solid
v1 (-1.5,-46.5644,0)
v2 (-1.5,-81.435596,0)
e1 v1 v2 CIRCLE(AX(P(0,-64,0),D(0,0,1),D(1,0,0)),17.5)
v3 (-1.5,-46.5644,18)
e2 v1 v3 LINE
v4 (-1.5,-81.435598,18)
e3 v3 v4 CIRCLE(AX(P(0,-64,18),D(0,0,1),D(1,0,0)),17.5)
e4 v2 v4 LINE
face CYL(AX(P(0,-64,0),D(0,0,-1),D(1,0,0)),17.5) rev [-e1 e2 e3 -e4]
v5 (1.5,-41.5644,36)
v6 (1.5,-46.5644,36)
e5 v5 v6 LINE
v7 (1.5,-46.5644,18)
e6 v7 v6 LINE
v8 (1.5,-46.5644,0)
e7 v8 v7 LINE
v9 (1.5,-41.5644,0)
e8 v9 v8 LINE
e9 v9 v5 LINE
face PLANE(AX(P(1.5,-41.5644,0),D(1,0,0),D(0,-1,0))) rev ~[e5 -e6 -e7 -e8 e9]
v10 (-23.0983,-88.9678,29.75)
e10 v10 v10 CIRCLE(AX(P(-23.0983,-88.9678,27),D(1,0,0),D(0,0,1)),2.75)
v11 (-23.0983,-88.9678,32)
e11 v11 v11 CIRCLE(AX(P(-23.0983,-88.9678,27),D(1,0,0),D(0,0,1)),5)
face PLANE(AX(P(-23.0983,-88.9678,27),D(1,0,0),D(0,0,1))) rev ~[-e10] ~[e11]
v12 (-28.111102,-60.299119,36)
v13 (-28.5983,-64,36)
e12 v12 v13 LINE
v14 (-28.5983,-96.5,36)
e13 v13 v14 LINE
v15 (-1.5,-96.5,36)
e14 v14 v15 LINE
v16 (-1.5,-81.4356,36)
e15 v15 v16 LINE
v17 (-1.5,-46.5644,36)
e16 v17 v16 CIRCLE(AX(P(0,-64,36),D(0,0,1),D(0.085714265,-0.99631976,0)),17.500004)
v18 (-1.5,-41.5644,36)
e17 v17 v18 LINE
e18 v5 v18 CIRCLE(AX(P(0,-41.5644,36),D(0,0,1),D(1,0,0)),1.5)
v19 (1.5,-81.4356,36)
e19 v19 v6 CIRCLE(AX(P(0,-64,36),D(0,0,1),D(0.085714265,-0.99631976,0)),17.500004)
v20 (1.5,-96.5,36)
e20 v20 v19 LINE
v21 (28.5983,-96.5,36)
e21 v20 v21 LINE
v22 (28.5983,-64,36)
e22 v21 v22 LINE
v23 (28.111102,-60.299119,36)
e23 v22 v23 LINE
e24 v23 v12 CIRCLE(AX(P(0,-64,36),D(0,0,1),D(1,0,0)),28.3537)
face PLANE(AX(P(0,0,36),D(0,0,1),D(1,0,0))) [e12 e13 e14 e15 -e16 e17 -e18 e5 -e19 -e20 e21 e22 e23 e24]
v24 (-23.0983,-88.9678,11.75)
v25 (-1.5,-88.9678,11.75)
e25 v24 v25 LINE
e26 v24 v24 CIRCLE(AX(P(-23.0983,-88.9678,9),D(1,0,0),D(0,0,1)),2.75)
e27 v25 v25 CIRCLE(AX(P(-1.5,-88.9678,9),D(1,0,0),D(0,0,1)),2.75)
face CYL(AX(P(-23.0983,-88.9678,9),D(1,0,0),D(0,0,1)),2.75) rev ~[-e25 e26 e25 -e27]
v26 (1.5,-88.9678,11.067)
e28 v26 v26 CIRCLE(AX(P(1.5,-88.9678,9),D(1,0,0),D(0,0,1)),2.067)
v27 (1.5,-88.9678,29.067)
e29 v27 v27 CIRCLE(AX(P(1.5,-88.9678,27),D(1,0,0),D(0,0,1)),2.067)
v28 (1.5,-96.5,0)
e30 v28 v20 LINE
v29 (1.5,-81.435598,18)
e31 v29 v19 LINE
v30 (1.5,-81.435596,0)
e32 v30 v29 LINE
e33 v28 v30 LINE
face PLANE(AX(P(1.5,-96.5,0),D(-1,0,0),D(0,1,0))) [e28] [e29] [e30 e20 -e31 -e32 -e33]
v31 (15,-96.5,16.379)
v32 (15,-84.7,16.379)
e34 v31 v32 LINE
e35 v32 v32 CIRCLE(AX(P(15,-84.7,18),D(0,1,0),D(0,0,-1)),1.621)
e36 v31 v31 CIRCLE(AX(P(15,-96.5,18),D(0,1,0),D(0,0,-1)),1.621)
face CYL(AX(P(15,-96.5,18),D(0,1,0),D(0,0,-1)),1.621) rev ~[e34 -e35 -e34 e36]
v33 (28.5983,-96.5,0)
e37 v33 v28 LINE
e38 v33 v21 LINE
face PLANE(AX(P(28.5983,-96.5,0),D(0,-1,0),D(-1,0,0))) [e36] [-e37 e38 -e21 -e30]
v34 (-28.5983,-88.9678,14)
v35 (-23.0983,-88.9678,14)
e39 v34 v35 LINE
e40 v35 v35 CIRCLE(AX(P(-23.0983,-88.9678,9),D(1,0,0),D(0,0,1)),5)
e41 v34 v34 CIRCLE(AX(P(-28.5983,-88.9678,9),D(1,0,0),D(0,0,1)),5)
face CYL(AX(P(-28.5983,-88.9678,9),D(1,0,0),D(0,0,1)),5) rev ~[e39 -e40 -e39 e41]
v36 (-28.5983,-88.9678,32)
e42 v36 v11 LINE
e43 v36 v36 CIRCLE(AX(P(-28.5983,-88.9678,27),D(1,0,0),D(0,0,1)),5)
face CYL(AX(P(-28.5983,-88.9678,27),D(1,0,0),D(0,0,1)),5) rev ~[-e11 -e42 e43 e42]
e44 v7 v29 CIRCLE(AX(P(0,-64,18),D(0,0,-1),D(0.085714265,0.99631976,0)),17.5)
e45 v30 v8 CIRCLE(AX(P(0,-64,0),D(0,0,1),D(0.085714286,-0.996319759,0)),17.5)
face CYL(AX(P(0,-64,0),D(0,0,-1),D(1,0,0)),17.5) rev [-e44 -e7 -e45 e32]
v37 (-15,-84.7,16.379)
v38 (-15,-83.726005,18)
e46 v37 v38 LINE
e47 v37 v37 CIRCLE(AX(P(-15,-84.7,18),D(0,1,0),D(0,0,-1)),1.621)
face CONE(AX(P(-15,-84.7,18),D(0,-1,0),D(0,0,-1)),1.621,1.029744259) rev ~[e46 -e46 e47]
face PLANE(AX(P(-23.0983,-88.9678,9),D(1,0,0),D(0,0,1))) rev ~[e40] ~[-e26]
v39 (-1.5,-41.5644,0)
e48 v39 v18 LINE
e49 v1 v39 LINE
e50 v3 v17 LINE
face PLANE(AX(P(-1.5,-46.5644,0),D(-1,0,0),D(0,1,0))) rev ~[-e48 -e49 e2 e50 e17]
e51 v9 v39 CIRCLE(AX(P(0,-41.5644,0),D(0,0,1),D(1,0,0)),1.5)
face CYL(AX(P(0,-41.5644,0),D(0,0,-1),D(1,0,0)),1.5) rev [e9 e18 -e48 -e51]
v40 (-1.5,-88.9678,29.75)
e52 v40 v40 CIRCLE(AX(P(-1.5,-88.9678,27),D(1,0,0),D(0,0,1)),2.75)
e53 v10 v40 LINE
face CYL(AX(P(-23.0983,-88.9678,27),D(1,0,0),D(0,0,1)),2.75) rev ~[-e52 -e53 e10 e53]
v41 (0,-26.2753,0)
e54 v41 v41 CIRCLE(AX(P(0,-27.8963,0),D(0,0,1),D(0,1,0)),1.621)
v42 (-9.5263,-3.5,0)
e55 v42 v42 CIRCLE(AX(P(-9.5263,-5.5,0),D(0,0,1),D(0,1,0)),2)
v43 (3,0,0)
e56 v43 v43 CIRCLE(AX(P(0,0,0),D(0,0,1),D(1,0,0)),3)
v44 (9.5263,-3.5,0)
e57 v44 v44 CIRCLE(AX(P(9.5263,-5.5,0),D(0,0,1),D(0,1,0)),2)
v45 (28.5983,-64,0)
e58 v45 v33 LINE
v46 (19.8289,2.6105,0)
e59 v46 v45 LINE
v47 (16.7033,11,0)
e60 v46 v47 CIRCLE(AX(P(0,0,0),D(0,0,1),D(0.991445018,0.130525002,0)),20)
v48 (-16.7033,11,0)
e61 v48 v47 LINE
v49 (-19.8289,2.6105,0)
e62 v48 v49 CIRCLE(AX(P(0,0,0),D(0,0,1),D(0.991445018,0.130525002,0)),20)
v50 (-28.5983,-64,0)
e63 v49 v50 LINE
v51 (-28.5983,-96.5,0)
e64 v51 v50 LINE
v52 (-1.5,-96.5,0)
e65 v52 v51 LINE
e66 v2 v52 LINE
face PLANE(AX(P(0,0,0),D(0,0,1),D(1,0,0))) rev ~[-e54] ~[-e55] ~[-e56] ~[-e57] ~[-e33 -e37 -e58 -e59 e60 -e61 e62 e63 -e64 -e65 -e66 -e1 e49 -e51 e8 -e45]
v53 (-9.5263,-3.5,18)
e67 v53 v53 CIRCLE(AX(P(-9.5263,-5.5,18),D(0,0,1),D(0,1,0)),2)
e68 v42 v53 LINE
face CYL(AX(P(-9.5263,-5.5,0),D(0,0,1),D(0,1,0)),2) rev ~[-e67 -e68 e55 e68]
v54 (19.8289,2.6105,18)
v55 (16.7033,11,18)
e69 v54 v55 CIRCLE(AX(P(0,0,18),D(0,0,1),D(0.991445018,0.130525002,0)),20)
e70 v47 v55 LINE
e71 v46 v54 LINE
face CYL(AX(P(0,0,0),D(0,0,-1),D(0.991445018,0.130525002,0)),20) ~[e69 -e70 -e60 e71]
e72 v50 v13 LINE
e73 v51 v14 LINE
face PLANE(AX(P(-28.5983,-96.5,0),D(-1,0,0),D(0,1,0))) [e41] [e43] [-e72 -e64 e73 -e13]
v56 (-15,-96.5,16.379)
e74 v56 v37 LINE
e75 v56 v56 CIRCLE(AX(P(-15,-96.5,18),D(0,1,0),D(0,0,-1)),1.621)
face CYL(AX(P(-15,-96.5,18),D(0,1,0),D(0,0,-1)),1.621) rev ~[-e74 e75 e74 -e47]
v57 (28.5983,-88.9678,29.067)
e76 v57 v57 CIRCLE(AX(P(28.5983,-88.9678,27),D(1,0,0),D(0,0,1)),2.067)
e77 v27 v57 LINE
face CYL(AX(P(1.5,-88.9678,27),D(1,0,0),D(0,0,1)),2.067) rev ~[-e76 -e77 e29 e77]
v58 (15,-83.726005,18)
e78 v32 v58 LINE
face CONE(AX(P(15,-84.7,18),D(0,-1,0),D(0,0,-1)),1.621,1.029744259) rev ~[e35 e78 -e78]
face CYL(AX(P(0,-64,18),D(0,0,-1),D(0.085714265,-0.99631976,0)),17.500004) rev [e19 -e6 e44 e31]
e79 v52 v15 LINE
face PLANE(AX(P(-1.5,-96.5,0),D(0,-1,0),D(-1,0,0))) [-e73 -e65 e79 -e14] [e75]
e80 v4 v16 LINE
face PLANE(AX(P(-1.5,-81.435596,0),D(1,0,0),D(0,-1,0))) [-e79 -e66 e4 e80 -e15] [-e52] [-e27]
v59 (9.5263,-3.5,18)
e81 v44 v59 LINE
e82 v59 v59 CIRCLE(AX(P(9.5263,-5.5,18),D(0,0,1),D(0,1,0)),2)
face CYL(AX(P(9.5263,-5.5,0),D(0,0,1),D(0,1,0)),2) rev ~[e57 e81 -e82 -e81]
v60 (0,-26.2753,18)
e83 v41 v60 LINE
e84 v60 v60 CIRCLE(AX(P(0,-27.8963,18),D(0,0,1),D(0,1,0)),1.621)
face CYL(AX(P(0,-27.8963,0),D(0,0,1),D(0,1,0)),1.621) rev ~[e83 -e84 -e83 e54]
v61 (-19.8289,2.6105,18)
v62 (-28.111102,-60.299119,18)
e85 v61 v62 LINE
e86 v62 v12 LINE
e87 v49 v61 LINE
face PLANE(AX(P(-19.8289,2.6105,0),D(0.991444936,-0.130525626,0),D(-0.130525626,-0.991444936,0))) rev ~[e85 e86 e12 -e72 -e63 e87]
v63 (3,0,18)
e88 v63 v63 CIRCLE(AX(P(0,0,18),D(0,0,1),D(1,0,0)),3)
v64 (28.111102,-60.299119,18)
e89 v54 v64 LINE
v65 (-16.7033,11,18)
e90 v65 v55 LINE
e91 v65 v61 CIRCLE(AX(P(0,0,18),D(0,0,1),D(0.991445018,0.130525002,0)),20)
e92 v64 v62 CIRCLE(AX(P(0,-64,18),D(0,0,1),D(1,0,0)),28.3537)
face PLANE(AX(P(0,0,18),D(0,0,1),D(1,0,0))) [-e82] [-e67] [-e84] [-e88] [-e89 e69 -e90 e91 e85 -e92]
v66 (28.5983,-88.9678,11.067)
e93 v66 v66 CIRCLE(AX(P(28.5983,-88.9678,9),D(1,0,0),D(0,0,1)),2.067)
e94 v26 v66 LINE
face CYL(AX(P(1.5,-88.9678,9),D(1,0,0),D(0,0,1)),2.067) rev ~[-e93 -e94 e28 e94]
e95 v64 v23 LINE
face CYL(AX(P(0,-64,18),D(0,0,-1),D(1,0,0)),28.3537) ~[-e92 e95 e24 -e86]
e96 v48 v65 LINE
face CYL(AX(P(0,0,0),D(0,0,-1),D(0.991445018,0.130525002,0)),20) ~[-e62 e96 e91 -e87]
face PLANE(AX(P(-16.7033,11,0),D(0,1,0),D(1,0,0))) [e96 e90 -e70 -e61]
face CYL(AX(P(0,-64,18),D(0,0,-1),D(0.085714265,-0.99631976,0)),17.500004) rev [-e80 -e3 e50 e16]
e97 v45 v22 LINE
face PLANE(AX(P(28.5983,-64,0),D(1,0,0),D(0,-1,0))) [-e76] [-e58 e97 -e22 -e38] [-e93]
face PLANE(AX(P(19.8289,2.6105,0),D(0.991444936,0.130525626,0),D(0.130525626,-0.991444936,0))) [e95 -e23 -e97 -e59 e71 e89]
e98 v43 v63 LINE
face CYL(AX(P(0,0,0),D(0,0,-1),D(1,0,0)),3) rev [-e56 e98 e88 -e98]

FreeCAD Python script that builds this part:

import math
import FreeCAD as App
import Part
import Sketcher
from FreeCAD import Vector
Q = App.Units.Quantity

doc = App.newDocument("Part")
body = doc.addObject("PartDesign::Body", "Body")

# Sketch on XY plane
sketch1 = doc.addObject("Sketcher::SketchObject", "Sketch")
body.addObject(sketch1)
sketch1.AttachmentSupport = (doc.XY_Plane, [""])
sketch1.MapMode = "FlatFace"
sketch1.addGeometry(Part.ArcOfCircle(Part.Circle(Vector(0, 0, 0), Vector(0, 0, 1), 20), math.radians(146.632998), math.radians(172.500069)), False)
sketch1.addGeometry(Part.LineSegment(Vector(-19.8289, 2.6105, 0), Vector(-28.5983, -64, 0)), False)
sketch1.addGeometry(Part.LineSegment(Vector(-28.5983, -64, 0), Vector(-28.5983, -96.5, 0)), False)
sketch1.addGeometry(Part.LineSegment(Vector(-28.5983, -96.5, 0), Vector(-1.5, -96.5, 0)), False)
sketch1.addGeometry(Part.LineSegment(Vector(-1.5, -96.5, 0), Vector(-1.5, -81.435596, 0)), False)
sketch1.addGeometry(Part.ArcOfCircle(Part.Circle(Vector(0, -64, 0), Vector(0, 0, 1), 17.5), math.radians(94.917099), math.radians(265.0829)), False)
sketch1.addGeometry(Part.LineSegment(Vector(-1.5, -46.5644, 0), Vector(-1.5, -41.5644, 0)), False)
sketch1.addGeometry(Part.ArcOfCircle(Part.Circle(Vector(0, -41.5644, 0), Vector(0, 0, 1), 1.5), math.radians(0), math.radians(180)), False)
sketch1.addGeometry(Part.LineSegment(Vector(1.5, -41.5644, 0), Vector(1.5, -46.5644, 0)), False)
sketch1.addGeometry(Part.ArcOfCircle(Part.Circle(Vector(0, -64, 0), Vector(0, 0, 1), 17.5), math.radians(-85.0829), math.radians(85.082901)), False)
sketch1.addGeometry(Part.LineSegment(Vector(1.5, -81.435596, 0), Vector(1.5, -96.5, 0)), False)
sketch1.addGeometry(Part.LineSegment(Vector(1.5, -96.5, 0), Vector(28.5983, -96.5, 0)), False)
sketch1.addGeometry(Part.LineSegment(Vector(28.5983, -96.5, 0), Vector(28.5983, -64, 0)), False)
sketch1.addGeometry(Part.LineSegment(Vector(28.5983, -64, 0), Vector(19.8289, 2.6105, 0)), False)
sketch1.addGeometry(Part.ArcOfCircle(Part.Circle(Vector(0, 0, 0), Vector(0, 0, 1), 20), math.radians(7.499931), math.radians(33.367002)), False)
sketch1.addGeometry(Part.LineSegment(Vector(16.7033, 11, 0), Vector(-16.7033, 11, 0)), False)
sketch1.addGeometry(Part.Circle(Vector(0, 0, 0), Vector(0, 0, 1), 3), False)
sketch1.addConstraint(Sketcher.Constraint("Tangent", 0, 2, 1, 1))
sketch1.addConstraint(Sketcher.Constraint("Coincident", 1, 2, 2, 1))
sketch1.addConstraint(Sketcher.Constraint("Coincident", 2, 2, 3, 1))
sketch1.addConstraint(Sketcher.Constraint("Coincident", 3, 2, 4, 1))
sketch1.addConstraint(Sketcher.Constraint("Coincident", 4, 2, 5, 2))
sketch1.addConstraint(Sketcher.Constraint("Coincident", 5, 1, 6, 1))
sketch1.addConstraint(Sketcher.Constraint("Tangent", 6, 2, 7, 2))
sketch1.addConstraint(Sketcher.Constraint("Tangent", 7, 1, 8, 1))
sketch1.addConstraint(Sketcher.Constraint("Coincident", 8, 2, 9, 2))
sketch1.addConstraint(Sketcher.Constraint("Coincident", 9, 1, 10, 1))
sketch1.addConstraint(Sketcher.Constraint("Coincident", 10, 2, 11, 1))
sketch1.addConstraint(Sketcher.Constraint("Coincident", 11, 2, 12, 1))
sketch1.addConstraint(Sketcher.Constraint("Coincident", 12, 2, 13, 1))
sketch1.addConstraint(Sketcher.Constraint("Tangent", 13, 2, 14, 1))
sketch1.addConstraint(Sketcher.Constraint("Coincident", 14, 2, 15, 1))
sketch1.addConstraint(Sketcher.Constraint("Coincident", 15, 2, 0, 1))
sketch1.addConstraint(Sketcher.Constraint("Vertical", 2))
sketch1.addConstraint(Sketcher.Constraint("Horizontal", 3))
sketch1.addConstraint(Sketcher.Constraint("Vertical", 4))
sketch1.addConstraint(Sketcher.Constraint("Vertical", 6))
sketch1.addConstraint(Sketcher.Constraint("Vertical", 8))
sketch1.addConstraint(Sketcher.Constraint("Vertical", 10))
sketch1.addConstraint(Sketcher.Constraint("Horizontal", 11))
sketch1.addConstraint(Sketcher.Constraint("Vertical", 12))
sketch1.addConstraint(Sketcher.Constraint("Horizontal", 15))
sketch1.addConstraint(Sketcher.Constraint("Coincident", 0, 3, -1, 1))
sketch1.addConstraint(Sketcher.Constraint("Coincident", 14, 3, -1, 1))
sketch1.addConstraint(Sketcher.Constraint("Coincident", 16, 3, -1, 1))
sketch1.addConstraint(Sketcher.Constraint("Coincident", 9, 3, 5, 3))
sketch1.addConstraint(Sketcher.Constraint("Equal", 5, 9))
sketch1.addConstraint(Sketcher.Constraint("Equal", 0, 14))
sketch1.addConstraint(Sketcher.Constraint("Symmetric", 5, 1, 8, 2, -2))
sketch1.addConstraint(Sketcher.Constraint("Symmetric", 3, 2, 10, 2, -2))
sketch1.addConstraint(Sketcher.Constraint("Symmetric", 1, 2, 12, 2, -2))
sketch1.addConstraint(Sketcher.Constraint("Horizontal", 9, 3, 1, 2))
sketch1.addConstraint(Sketcher.Constraint("Vertical", 4, 2, 5, 1))
sketch1.addConstraint(Sketcher.Constraint("Diameter", 16, 6.0))
sketch1.addConstraint(Sketcher.Constraint("Radius", 0, 20.0))
sketch1.addConstraint(Sketcher.Constraint("Radius", 5, 17.5))
sketch1.addConstraint(Sketcher.Constraint("Radius", 7, 1.5))
sketch1.addConstraint(Sketcher.Constraint("DistanceY", 6, 1, 6, 2, 5.0))
sketch1.addConstraint(Sketcher.Constraint("DistanceY", -1, 1, 14, 2, 11.0))
sketch1.addConstraint(Sketcher.Constraint("DistanceY", 2, 2, 2, 1, 32.5))
sketch1.addConstraint(Sketcher.Constraint("DistanceY", 5, 3, -1, 1, 64.0))
sketch1.addConstraint(Sketcher.Constraint("Angle", 1, Q("-97.5 deg")))
pad1 = doc.addObject("PartDesign::Pad", "Pad")
body.addObject(pad1)
pad1.Profile = sketch1
pad1.Length = 18

# Sketch on XY plane
sketch2 = doc.addObject("Sketcher::SketchObject", "Sketch001")
body.addObject(sketch2)
sketch2.AttachmentSupport = (doc.XY_Plane, [""])
sketch2.MapMode = "FlatFace"
sketch2.addGeometry(Part.Circle(Vector(-9.5263, -5.5, 0), Vector(0, 0, 1), 2), False)
sketch2.addGeometry(Part.Circle(Vector(9.5263, -5.5, 0), Vector(0, 0, 1), 2), False)
sketch2.addConstraint(Sketcher.Constraint("Equal", 0, 1))
sketch2.addConstraint(Sketcher.Constraint("Symmetric", 0, 3, 1, 3, -2))
sketch2.addConstraint(Sketcher.Constraint("Diameter", 0, 4.0))
sketch2.addConstraint(Sketcher.Constraint("DistanceY", 0, 3, -1, 1, 5.5))
sketch2.addConstraint(Sketcher.Constraint("DistanceX", 0, 3, -1, 1, 9.5263))
doc.recompute()
hole = doc.addObject("PartDesign::Hole", "Hole")
body.addObject(hole)
hole.Profile = sketch2
hole.ThreadType = "None"
hole.Diameter = 4
hole.DepthType = "ThroughAll"
hole.Reversed = True

# Sketch on XY plane
sketch3 = doc.addObject("Sketcher::SketchObject", "Sketch002")
body.addObject(sketch3)
sketch3.AttachmentSupport = (doc.XY_Plane, [""])
sketch3.MapMode = "FlatFace"
sketch3.AttachmentOffset = App.Placement(Vector(0, 0, 18), App.Rotation())
sketch3.addGeometry(Part.LineSegment(Vector(1.5, -81.4356, 0), Vector(1.5, -96.5, 0)), False)
sketch3.addGeometry(Part.LineSegment(Vector(1.5, -96.5, 0), Vector(28.5983, -96.5, 0)), False)
sketch3.addGeometry(Part.LineSegment(Vector(28.5983, -96.5, 0), Vector(28.5983, -64, 0)), False)
sketch3.addGeometry(Part.LineSegment(Vector(28.5983, -64, 0), Vector(28.111073, -60.299123, 0)), False)
sketch3.addGeometry(Part.ArcOfCircle(Part.Circle(Vector(0, -64, 0), Vector(0, 0, 1), 28.3537), math.radians(7.499967), math.radians(172.500033)), False)
sketch3.addGeometry(Part.LineSegment(Vector(-28.111073, -60.299123, 0), Vector(-28.5983, -64, 0)), False)
sketch3.addGeometry(Part.LineSegment(Vector(-28.5983, -64, 0), Vector(-28.5983, -96.5, 0)), False)
sketch3.addGeometry(Part.LineSegment(Vector(-28.5983, -96.5, 0), Vector(-1.5, -96.5, 0)), False)
sketch3.addGeometry(Part.LineSegment(Vector(-1.5, -96.5, 0), Vector(-1.5, -81.4356, 0)), False)
sketch3.addGeometry(Part.ArcOfCircle(Part.Circle(Vector(0, -64, 0), Vector(0, 0, 1), 17.500004), math.radians(94.917099), math.radians(265.082901)), False)
sketch3.addGeometry(Part.LineSegment(Vector(-1.5, -46.5644, 0), Vector(-1.5, -41.5644, 0)), False)
sketch3.addGeometry(Part.ArcOfCircle(Part.Circle(Vector(0, -41.5644, 0), Vector(0, 0, 1), 1.5), math.radians(0), math.radians(180)), False)
sketch3.addGeometry(Part.LineSegment(Vector(1.5, -41.5644, 0), Vector(1.5, -46.5644, 0)), False)
sketch3.addGeometry(Part.ArcOfCircle(Part.Circle(Vector(0, -64, 0), Vector(0, 0, 1), 17.500004), math.radians(-85.082901), math.radians(85.082901)), False)
sketch3.addConstraint(Sketcher.Constraint("Coincident", 0, 2, 1, 1))
sketch3.addConstraint(Sketcher.Constraint("Coincident", 1, 2, 2, 1))
sketch3.addConstraint(Sketcher.Constraint("Coincident", 2, 2, 3, 1))
sketch3.addConstraint(Sketcher.Constraint("Tangent", 3, 2, 4, 1))
sketch3.addConstraint(Sketcher.Constraint("Tangent", 4, 2, 5, 1))
sketch3.addConstraint(Sketcher.Constraint("Coincident", 5, 2, 6, 1))
sketch3.addConstraint(Sketcher.Constraint("Coincident", 6, 2, 7, 1))
sketch3.addConstraint(Sketcher.Constraint("Coincident", 7, 2, 8, 1))
sketch3.addConstraint(Sketcher.Constraint("Coincident", 8, 2, 9, 2))
sketch3.addConstraint(Sketcher.Constraint("Coincident", 9, 1, 10, 1))
sketch3.addConstraint(Sketcher.Constraint("Tangent", 10, 2, 11, 2))
sketch3.addConstraint(Sketcher.Constraint("Tangent", 11, 1, 12, 1))
sketch3.addConstraint(Sketcher.Constraint("Coincident", 12, 2, 13, 2))
sketch3.addConstraint(Sketcher.Constraint("Coincident", 13, 1, 0, 1))
sketch3.addConstraint(Sketcher.Constraint("Vertical", 0))
sketch3.addConstraint(Sketcher.Constraint("Horizontal", 1))
sketch3.addConstraint(Sketcher.Constraint("Vertical", 2))
sketch3.addConstraint(Sketcher.Constraint("Vertical", 6))
sketch3.addConstraint(Sketcher.Constraint("Horizontal", 7))
sketch3.addConstraint(Sketcher.Constraint("Vertical", 8))
sketch3.addConstraint(Sketcher.Constraint("Vertical", 10))
sketch3.addConstraint(Sketcher.Constraint("Vertical", 12))
sketch3.addConstraint(Sketcher.Constraint("Coincident", 9, 3, 4, 3))
sketch3.addConstraint(Sketcher.Constraint("Coincident", 13, 3, 4, 3))
sketch3.addConstraint(Sketcher.Constraint("Equal", 9, 13))
sketch3.addConstraint(Sketcher.Constraint("Symmetric", 3, 2, 4, 2, -2))
sketch3.addConstraint(Sketcher.Constraint("Symmetric", 1, 2, 6, 2, -2))
sketch3.addConstraint(Sketcher.Constraint("PointOnObject", 11, 3, -2))
sketch3.addConstraint(Sketcher.Constraint("Horizontal", 13, 3, 2, 2))
sketch3.addConstraint(Sketcher.Constraint("Horizontal", 8, 2, 13, 1))
sketch3.addConstraint(Sketcher.Constraint("Vertical", 8, 2, 9, 1))
sketch3.addConstraint(Sketcher.Constraint("Radius", 9, 17.5))
sketch3.addConstraint(Sketcher.Constraint("Radius", 11, 1.5))
sketch3.addConstraint(Sketcher.Constraint("DistanceY", 10, 1, 10, 2, 5.0))
sketch3.addConstraint(Sketcher.Constraint("DistanceY", 2, 1, 2, 2, 32.5))
sketch3.addConstraint(Sketcher.Constraint("DistanceY", 4, 3, -1, 1, 64.0))
sketch3.addConstraint(Sketcher.Constraint("Angle", 3, Q("97.5 deg")))
sketch3.addConstraint(Sketcher.Constraint("Radius", 4, 28.3537))
pad2 = doc.addObject("PartDesign::Pad", "Pad001")
body.addObject(pad2)
pad2.Profile = sketch3
pad2.Length = 18

# Sketch on YZ plane
sketch4 = doc.addObject("Sketcher::SketchObject", "Sketch003")
body.addObject(sketch4)
sketch4.AttachmentSupport = (doc.YZ_Plane, [""])
sketch4.MapMode = "FlatFace"
sketch4.AttachmentOffset = App.Placement(Vector(0, 0, 1.5), App.Rotation())
sketch4.addGeometry(Part.Circle(Vector(-88.9678, 9, 0), Vector(0, 0, 1), 2.067), False)
sketch4.addGeometry(Part.Circle(Vector(-88.9678, 27, 0), Vector(0, 0, 1), 2.067), False)
sketch4.addConstraint(Sketcher.Constraint("Equal", 0, 1))
sketch4.addConstraint(Sketcher.Constraint("Vertical", 0, 3, 1, 3))
sketch4.addConstraint(Sketcher.Constraint("Diameter", 0, 4.134))
sketch4.addConstraint(Sketcher.Constraint("DistanceY", -1, 1, 0, 3, 9.0))
sketch4.addConstraint(Sketcher.Constraint("DistanceY", -1, 1, 1, 3, 27.0))
sketch4.addConstraint(Sketcher.Constraint("DistanceX", 0, 3, -1, 1, 88.9678))
doc.recompute()
hole2 = doc.addObject("PartDesign::Hole", "Hole001")
body.addObject(hole2)
hole2.Profile = sketch4
hole2.ThreadType = "None"
hole2.Diameter = 4.134
hole2.DepthType = "ThroughAll"
hole2.Reversed = True

# Sketch on YZ plane
sketch5 = doc.addObject("Sketcher::SketchObject", "Sketch004")
body.addObject(sketch5)
sketch5.AttachmentSupport = (doc.YZ_Plane, [""])
sketch5.MapMode = "FlatFace"
sketch5.AttachmentOffset = App.Placement(Vector(0, 0, -28.5983), App.Rotation())
sketch5.addGeometry(Part.Circle(Vector(-88.9678, 9, 0), Vector(0, 0, 1), 2.75), False)
sketch5.addGeometry(Part.Circle(Vector(-88.9678, 27, 0), Vector(0, 0, 1), 2.75), False)
sketch5.addConstraint(Sketcher.Constraint("Equal", 0, 1))
sketch5.addConstraint(Sketcher.Constraint("Vertical", 0, 3, 1, 3))
sketch5.addConstraint(Sketcher.Constraint("Diameter", 0, 5.5))
sketch5.addConstraint(Sketcher.Constraint("DistanceY", -1, 1, 0, 3, 9.0))
sketch5.addConstraint(Sketcher.Constraint("DistanceY", -1, 1, 1, 3, 27.0))
sketch5.addConstraint(Sketcher.Constraint("DistanceX", 0, 3, -1, 1, 88.9678))
doc.recompute()
hole3 = doc.addObject("PartDesign::Hole", "Hole002")
body.addObject(hole3)
hole3.Profile = sketch5
hole3.ThreadType = "None"
hole3.Diameter = 5.5
hole3.DepthType = "Dimension"
hole3.Depth = 27.0983
hole3.DrillPoint = "Flat"
hole3.HoleCutType = "Counterbore"
hole3.HoleCutDiameter = 10
hole3.HoleCutDepth = 5.5
hole3.Reversed = True

# Sketch on XZ plane
sketch6 = doc.addObject("Sketcher::SketchObject", "Sketch005")
body.addObject(sketch6)
sketch6.AttachmentSupport = (doc.XZ_Plane, [""])
sketch6.MapMode = "FlatFace"
sketch6.AttachmentOffset = App.Placement(Vector(0, 0, 96.5), App.Rotation())
sketch6.addGeometry(Part.Circle(Vector(15, 18, 0), Vector(0, 0, 1), 1.621), False)
sketch6.addGeometry(Part.Circle(Vector(-15, 18, 0), Vector(0, 0, 1), 1.621), False)
sketch6.addConstraint(Sketcher.Constraint("Equal", 0, 1))
sketch6.addConstraint(Sketcher.Constraint("Symmetric", 0, 3, 1, 3, -2))
sketch6.addConstraint(Sketcher.Constraint("Diameter", 0, 3.242))
sketch6.addConstraint(Sketcher.Constraint("DistanceX", -1, 1, 0, 3, 15.0))
sketch6.addConstraint(Sketcher.Constraint("DistanceY", -1, 1, 0, 3, 18.0))
doc.recompute()
hole4 = doc.addObject("PartDesign::Hole", "Hole003")
body.addObject(hole4)
hole4.Profile = sketch6
hole4.ThreadType = "None"
hole4.Diameter = 3.242
hole4.DepthType = "Dimension"
hole4.Depth = 11.8
hole4.DrillPoint = "Angled"
hole4.DrillPointAngle = 118

# Sketch on XY plane
sketch7 = doc.addObject("Sketcher::SketchObject", "Sketch006")
body.addObject(sketch7)
sketch7.AttachmentSupport = (doc.XY_Plane, [""])
sketch7.MapMode = "FlatFace"
sketch7.addGeometry(Part.Circle(Vector(0, -27.8963, 0), Vector(0, 0, 1), 1.621), False)
sketch7.addConstraint(Sketcher.Constraint("PointOnObject", 0, 3, -2))
sketch7.addConstraint(Sketcher.Constraint("Diameter", 0, 3.242))
sketch7.addConstraint(Sketcher.Constraint("DistanceY", 0, 3, -1, 1, 27.8963))
doc.recompute()
hole5 = doc.addObject("PartDesign::Hole", "Hole004")
body.addObject(hole5)
hole5.Profile = sketch7
hole5.ThreadType = "None"
hole5.Diameter = 3.242
hole5.DepthType = "ThroughAll"
hole5.Reversed = True

doc.recompute()
